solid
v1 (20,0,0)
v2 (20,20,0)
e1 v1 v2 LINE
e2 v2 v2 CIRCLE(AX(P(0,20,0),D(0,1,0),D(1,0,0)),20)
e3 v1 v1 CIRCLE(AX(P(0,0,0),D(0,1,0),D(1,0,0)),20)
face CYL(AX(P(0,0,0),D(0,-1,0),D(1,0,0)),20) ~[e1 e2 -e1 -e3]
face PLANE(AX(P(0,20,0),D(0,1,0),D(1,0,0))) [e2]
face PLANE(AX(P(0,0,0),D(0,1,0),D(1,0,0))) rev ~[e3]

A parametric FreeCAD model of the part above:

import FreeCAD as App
import Part
import Sketcher

V = App.Vector
Q = App.Units.Quantity

doc = App.newDocument("Part")
body = doc.addObject("PartDesign::Body", "Body")

# Sketch on XZ plane
sketch1 = doc.addObject("Sketcher::SketchObject", "Sketch")
body.addObject(sketch1)
sketch1.AttachmentSupport = (doc.XZ_Plane, [""])
sketch1.MapMode = "FlatFace"
sketch1.addGeometry(Part.Circle(V(0, 0, 0), V(0, 0, 1), 20), False)
sketch1.addConstraint([
    Sketcher.Constraint("Coincident", 0, 3, -1, 1),
    Sketcher.Constraint("Diameter", 0, Q("40 mm")),
])
pad1 = doc.addObject("PartDesign::Pad", "Pad")
body.addObject(pad1)
pad1.Profile = sketch1
pad1.Length = 20
pad1.Reversed = True

doc.recompute()
